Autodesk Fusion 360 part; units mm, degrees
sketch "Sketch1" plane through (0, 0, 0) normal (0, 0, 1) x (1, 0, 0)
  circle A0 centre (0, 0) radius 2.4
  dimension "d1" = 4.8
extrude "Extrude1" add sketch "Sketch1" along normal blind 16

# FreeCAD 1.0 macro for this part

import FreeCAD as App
import Part
import Sketcher

doc = App.newDocument("Part")
body = doc.addObject("PartDesign::Body", "Body")

sketch1 = body.newObject("Sketcher::SketchObject", "Sketch")
sketch1.AttachmentSupport = (doc.getObject("XY_Plane"), [""])
sketch1.MapMode = "FlatFace"
sketch1.addGeometry(Part.Circle(App.Vector(0, 0, 0), App.Vector(0, 0, 1), 2.4), False)
sketch1.addConstraint(Sketcher.Constraint("Coincident", 0, 3, -1, 1))
sketch1.addConstraint(Sketcher.Constraint("Diameter", 0, 4.8))
pad1 = body.newObject("PartDesign::Pad", "Pad")
pad1.Profile = sketch1
pad1.Length = 16

doc.recompute()
